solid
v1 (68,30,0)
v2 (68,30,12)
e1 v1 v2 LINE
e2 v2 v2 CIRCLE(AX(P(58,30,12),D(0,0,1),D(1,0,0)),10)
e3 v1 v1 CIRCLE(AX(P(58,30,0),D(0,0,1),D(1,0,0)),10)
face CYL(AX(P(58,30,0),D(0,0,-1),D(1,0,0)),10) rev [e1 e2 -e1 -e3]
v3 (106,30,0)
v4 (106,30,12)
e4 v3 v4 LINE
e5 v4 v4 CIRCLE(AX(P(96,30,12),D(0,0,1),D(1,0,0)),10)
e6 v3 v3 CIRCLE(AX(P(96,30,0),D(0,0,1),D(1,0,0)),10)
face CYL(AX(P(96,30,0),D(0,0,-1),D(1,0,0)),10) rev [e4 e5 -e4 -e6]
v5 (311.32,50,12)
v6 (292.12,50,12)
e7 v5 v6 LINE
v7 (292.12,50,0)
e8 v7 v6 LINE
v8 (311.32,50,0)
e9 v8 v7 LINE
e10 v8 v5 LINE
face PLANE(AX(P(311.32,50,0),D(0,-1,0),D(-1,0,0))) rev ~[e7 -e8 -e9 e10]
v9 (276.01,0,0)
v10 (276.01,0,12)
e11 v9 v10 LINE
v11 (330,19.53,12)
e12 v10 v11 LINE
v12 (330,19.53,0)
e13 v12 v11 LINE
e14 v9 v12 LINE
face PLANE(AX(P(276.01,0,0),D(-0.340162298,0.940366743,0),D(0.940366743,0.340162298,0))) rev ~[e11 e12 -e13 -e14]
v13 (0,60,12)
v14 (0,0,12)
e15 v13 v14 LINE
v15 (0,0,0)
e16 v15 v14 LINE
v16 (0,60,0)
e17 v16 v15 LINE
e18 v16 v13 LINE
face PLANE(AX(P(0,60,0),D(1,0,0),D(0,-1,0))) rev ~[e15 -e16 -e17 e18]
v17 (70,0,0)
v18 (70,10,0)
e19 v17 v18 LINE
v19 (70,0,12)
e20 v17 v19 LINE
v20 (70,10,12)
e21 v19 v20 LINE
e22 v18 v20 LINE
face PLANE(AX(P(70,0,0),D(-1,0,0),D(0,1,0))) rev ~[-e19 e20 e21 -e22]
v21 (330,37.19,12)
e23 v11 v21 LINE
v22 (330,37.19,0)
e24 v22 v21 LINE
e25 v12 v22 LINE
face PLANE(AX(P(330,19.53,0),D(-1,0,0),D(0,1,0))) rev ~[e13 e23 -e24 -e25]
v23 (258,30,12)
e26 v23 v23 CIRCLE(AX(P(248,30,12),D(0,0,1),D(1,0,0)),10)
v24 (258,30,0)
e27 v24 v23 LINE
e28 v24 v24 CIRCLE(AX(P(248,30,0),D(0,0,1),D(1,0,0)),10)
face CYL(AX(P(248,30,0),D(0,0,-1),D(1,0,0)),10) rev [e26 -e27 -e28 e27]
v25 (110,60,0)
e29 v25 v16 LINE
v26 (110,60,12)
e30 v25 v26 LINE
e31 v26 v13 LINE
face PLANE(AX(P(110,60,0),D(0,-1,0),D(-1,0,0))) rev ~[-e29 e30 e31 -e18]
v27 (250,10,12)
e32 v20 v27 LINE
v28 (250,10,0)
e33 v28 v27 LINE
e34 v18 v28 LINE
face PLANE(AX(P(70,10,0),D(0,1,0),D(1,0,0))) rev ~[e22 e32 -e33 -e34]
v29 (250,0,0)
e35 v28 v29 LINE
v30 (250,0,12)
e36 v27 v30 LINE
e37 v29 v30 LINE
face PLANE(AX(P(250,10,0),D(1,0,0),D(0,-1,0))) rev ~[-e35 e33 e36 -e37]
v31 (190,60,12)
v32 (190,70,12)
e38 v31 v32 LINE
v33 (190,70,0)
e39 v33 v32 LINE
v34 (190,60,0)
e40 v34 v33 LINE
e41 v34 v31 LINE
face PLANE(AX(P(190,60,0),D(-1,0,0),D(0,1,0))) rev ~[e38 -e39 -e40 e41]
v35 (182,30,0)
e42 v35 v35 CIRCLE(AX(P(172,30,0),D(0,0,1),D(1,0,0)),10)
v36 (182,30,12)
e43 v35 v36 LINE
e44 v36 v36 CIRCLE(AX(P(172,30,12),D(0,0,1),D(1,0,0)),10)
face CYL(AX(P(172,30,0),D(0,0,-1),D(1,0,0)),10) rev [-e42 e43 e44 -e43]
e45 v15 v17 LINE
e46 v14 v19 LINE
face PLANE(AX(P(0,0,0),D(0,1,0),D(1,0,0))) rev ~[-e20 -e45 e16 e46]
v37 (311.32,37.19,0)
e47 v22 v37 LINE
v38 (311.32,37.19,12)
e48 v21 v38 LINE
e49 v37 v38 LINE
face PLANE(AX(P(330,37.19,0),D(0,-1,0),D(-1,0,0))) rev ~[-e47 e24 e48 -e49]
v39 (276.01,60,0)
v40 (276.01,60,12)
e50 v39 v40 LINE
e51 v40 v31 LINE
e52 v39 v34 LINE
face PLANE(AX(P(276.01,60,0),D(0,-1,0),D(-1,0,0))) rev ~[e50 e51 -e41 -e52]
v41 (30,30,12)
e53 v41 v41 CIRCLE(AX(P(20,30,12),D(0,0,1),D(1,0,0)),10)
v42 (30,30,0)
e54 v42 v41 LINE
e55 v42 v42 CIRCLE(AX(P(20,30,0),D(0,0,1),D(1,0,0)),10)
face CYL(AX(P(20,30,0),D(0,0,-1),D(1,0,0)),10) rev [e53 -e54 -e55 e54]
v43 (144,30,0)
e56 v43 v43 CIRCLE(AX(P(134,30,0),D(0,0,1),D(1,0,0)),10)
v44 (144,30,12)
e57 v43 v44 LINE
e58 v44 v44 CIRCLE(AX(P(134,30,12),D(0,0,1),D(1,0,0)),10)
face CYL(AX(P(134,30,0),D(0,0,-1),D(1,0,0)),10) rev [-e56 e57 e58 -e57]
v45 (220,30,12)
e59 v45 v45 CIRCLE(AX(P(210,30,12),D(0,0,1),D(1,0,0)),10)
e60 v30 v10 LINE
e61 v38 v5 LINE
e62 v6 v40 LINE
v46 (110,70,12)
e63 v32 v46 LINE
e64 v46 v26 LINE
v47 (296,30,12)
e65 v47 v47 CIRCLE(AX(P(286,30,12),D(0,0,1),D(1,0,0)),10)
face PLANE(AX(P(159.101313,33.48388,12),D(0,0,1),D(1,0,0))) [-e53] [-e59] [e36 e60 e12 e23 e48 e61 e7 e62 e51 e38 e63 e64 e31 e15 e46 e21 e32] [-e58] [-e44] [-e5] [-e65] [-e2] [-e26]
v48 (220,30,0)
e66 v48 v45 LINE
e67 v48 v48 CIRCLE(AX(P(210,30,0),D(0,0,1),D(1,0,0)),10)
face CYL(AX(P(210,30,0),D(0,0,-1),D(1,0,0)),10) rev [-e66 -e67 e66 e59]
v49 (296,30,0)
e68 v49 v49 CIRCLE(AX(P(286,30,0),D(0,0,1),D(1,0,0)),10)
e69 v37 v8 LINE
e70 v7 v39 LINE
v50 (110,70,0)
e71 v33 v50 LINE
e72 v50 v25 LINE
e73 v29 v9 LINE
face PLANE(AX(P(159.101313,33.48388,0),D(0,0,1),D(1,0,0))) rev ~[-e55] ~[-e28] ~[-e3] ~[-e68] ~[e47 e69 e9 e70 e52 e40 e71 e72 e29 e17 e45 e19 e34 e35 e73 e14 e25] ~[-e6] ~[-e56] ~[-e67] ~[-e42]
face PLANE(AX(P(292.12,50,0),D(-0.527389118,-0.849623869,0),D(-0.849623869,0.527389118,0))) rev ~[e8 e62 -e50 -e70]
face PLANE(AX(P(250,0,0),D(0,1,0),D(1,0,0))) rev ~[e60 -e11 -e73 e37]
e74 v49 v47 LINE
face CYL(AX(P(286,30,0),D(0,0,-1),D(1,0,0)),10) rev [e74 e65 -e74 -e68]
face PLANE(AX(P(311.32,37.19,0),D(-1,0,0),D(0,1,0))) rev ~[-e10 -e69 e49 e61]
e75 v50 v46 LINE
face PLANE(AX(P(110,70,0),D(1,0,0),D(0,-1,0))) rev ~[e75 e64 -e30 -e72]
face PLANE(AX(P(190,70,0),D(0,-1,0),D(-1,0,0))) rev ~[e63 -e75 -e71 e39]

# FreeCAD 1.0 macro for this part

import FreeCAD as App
import Part
import Sketcher

V = App.Vector


def add_polygon(sketch, points):
    """Adds a closed chain of lines whose ends are joined by coincident constraints."""
    first, n = sketch.GeometryCount, len(points)
    for a, b in zip(points, points[1:] + points[:1]):
        sketch.addGeometry(Part.LineSegment(App.Vector(*a, 0), App.Vector(*b, 0)), False)
    for i in range(n):
        sketch.addConstraint(Sketcher.Constraint("Coincident", first + i, 2, first + (i + 1) % n, 1))

doc = App.newDocument("Part")
params = doc.addObject("Spreadsheet::Sheet", "Params")
for row, (alias, value) in enumerate([
    ("sketch1_diameter", "20 mm"),
    ("sketch1_width", "70 mm"),
    ("sketch1_width2", "180 mm"),
    ("sketch1_width3", "80 mm"),
    ("sketch1_width4", "110 mm"),
    ("pad1_length", "12 mm"),
], start=1):
    params.set(f"A{row}", alias)
    params.set(f"B{row}", "=" + value)
    params.setAlias(f"B{row}", alias)

body = doc.addObject("PartDesign::Body", "Body")

# Sketch on XY plane
sketch1 = body.newObject("Sketcher::SketchObject", "Sketch")
sketch1.AttachmentSupport = (doc.getObject("XY_Plane"), [""])
sketch1.MapMode = "FlatFace"
add_polygon(sketch1, [(0, 60), (0, 0), (70, 0), (70, 10), (250, 10), (250, 0), (276.01, 0), (330, 19.53), (330, 37.19), (311.32, 37.19), (311.32, 50), (292.12, 50), (276.01, 60), (190, 60), (190, 70), (110, 70), (110, 60)])  # lines 0-16
sketch1.addGeometry(Part.Circle(V(20, 30, 0), V(0, 0, 1), 10), False)  # 17
sketch1.addGeometry(Part.Circle(V(58, 30, 0), V(0, 0, 1), 10), False)  # 18
sketch1.addGeometry(Part.Circle(V(96, 30, 0), V(0, 0, 1), 10), False)  # 19
sketch1.addGeometry(Part.Circle(V(134, 30, 0), V(0, 0, 1), 10), False)  # 20
sketch1.addGeometry(Part.Circle(V(172, 30, 0), V(0, 0, 1), 10), False)  # 21
sketch1.addGeometry(Part.Circle(V(210, 30, 0), V(0, 0, 1), 10), False)  # 22
sketch1.addGeometry(Part.Circle(V(248, 30, 0), V(0, 0, 1), 10), False)  # 23
sketch1.addGeometry(Part.Circle(V(286, 30, 0), V(0, 0, 1), 10), False)  # 24
sketch1.addConstraint([
    Sketcher.Constraint("Vertical", 0),
    Sketcher.Constraint("Horizontal", 1),
    Sketcher.Constraint("Vertical", 2),
    Sketcher.Constraint("Horizontal", 3),
    Sketcher.Constraint("Vertical", 4),
    Sketcher.Constraint("Horizontal", 5),
    Sketcher.Constraint("Vertical", 7),
    Sketcher.Constraint("Horizontal", 8),
    Sketcher.Constraint("Vertical", 9),
    Sketcher.Constraint("Horizontal", 10),
    Sketcher.Constraint("Horizontal", 12),
    Sketcher.Constraint("Vertical", 13),
    Sketcher.Constraint("Horizontal", 14),
    Sketcher.Constraint("Vertical", 15),
    Sketcher.Constraint("Horizontal", 16),
    Sketcher.Constraint("Coincident", 0, 2, -1, 1),
    Sketcher.Constraint("Equal", 17, 18),
    Sketcher.Constraint("Equal", 18, 19),
    Sketcher.Constraint("Equal", 19, 20),
    Sketcher.Constraint("Equal", 20, 21),
    Sketcher.Constraint("Equal", 21, 22),
    Sketcher.Constraint("Equal", 22, 23),
    Sketcher.Constraint("Equal", 23, 24),
    Sketcher.Constraint("PointOnObject", 4, 2, -1),
    Sketcher.Constraint("Horizontal", 17, 3, 18, 3),
    Sketcher.Constraint("Horizontal", 18, 3, 19, 3),
    Sketcher.Constraint("Horizontal", 19, 3, 20, 3),
    Sketcher.Constraint("Horizontal", 20, 3, 21, 3),
    Sketcher.Constraint("Horizontal", 21, 3, 22, 3),
    Sketcher.Constraint("Horizontal", 22, 3, 23, 3),
    Sketcher.Constraint("Horizontal", 23, 3, 24, 3),
    Sketcher.Constraint("Horizontal", 12, 2, 15, 2),
    Sketcher.Constraint("Vertical", 5, 2, 11, 2),
    Sketcher.Constraint("Equal", 4, 13),
    Sketcher.Constraint("Diameter", 17, 20.0),
    Sketcher.Constraint("DistanceX", 1, 1, 1, 2, 70.0),
    Sketcher.Constraint("DistanceX", 3, 1, 3, 2, 180.0),
    Sketcher.Constraint("DistanceX", 14, 2, 14, 1, 80.0),
    Sketcher.Constraint("DistanceX", 16, 2, 16, 1, 110.0),
    Sketcher.Constraint("DistanceY", 0, 2, 0, 1, 60.0),
    Sketcher.Constraint("DistanceY", 2, 1, 2, 2, 10.0),
    Sketcher.Constraint("DistanceX", 10, 2, 10, 1, 19.2),
    Sketcher.Constraint("DistanceX", -1, 1, 17, 3, 20.0),
    Sketcher.Constraint("DistanceY", -1, 1, 17, 3, 30.0),
    Sketcher.Constraint("DistanceX", -1, 1, 18, 3, 58.0),
    Sketcher.Constraint("DistanceX", -1, 1, 19, 3, 96.0),
    Sketcher.Constraint("DistanceX", -1, 1, 20, 3, 134.0),
    Sketcher.Constraint("DistanceX", -1, 1, 21, 3, 172.0),
    Sketcher.Constraint("DistanceX", -1, 1, 22, 3, 210.0),
    Sketcher.Constraint("DistanceX", -1, 1, 23, 3, 248.0),
    Sketcher.Constraint("DistanceX", -1, 1, 24, 3, 286.0),
    Sketcher.Constraint("DistanceX", -1, 1, 6, 2, 330.0),
    Sketcher.Constraint("DistanceY", -1, 1, 9, 2, 50.0),
    Sketcher.Constraint("DistanceX", 5, 1, 5, 2, 26.01),
    Sketcher.Constraint("DistanceX", 8, 2, 8, 1, 18.68),
    Sketcher.Constraint("DistanceY", 7, 1, 7, 2, 17.66),
    Sketcher.Constraint("DistanceY", 9, 1, 9, 2, 12.81),
])
sketch1.setExpression("Constraints[51]", "Params.sketch1_diameter")
sketch1.setExpression("Constraints[52]", "Params.sketch1_width")
sketch1.setExpression("Constraints[53]", "Params.sketch1_width2")
sketch1.setExpression("Constraints[54]", "Params.sketch1_width3")
sketch1.setExpression("Constraints[55]", "Params.sketch1_width4")
pad1 = body.newObject("PartDesign::Pad", "Pad")
pad1.Profile = sketch1
pad1.setExpression("Length", "Params.pad1_length")

doc.recompute()
